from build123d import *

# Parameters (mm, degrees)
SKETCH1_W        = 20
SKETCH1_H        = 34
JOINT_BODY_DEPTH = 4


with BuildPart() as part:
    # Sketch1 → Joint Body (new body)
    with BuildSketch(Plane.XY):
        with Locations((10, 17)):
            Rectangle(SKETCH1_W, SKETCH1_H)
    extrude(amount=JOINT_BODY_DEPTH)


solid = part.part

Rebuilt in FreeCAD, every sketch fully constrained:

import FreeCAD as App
import Part
import Sketcher

V = App.Vector

doc = App.newDocument("Part")
body = doc.addObject("PartDesign::Body", "Body")

# Sketch on XY plane
sketch1 = body.newObject("Sketcher::SketchObject", "Sketch")
sketch1.AttachmentSupport = (doc.getObject("XY_Plane"), [""])
sketch1.MapMode = "FlatFace"
sketch1.addGeometry([
    Part.LineSegment(V(0, 34, 0), V(0, 0, 0)),
    Part.LineSegment(V(0, 0, 0), V(20, 0, 0)),
    Part.LineSegment(V(20, 0, 0), V(20, 34, 0)),
    Part.LineSegment(V(20, 34, 0), V(0, 34, 0)),
], False)
sketch1.addConstraint([
    Sketcher.Constraint("Coincident", 0, 2, 1, 1),
    Sketcher.Constraint("Coincident", 1, 2, 2, 1),
    Sketcher.Constraint("Coincident", 2, 2, 3, 1),
    Sketcher.Constraint("Coincident", 3, 2, 0, 1),
    Sketcher.Constraint("Vertical", 0),
    Sketcher.Constraint("Horizontal", 1),
    Sketcher.Constraint("Vertical", 2),
    Sketcher.Constraint("Horizontal", 3),
    Sketcher.Constraint("Coincident", 0, 2, -1, 1),
    Sketcher.Constraint("DistanceX", 1, 1, 1, 2, 20.0),
    Sketcher.Constraint("DistanceY", 0, 2, 0, 1, 34.0),
])
pad1 = body.newObject("PartDesign::Pad", "Pad")
pad1.Profile = sketch1
pad1.Length = 4

doc.recompute()
